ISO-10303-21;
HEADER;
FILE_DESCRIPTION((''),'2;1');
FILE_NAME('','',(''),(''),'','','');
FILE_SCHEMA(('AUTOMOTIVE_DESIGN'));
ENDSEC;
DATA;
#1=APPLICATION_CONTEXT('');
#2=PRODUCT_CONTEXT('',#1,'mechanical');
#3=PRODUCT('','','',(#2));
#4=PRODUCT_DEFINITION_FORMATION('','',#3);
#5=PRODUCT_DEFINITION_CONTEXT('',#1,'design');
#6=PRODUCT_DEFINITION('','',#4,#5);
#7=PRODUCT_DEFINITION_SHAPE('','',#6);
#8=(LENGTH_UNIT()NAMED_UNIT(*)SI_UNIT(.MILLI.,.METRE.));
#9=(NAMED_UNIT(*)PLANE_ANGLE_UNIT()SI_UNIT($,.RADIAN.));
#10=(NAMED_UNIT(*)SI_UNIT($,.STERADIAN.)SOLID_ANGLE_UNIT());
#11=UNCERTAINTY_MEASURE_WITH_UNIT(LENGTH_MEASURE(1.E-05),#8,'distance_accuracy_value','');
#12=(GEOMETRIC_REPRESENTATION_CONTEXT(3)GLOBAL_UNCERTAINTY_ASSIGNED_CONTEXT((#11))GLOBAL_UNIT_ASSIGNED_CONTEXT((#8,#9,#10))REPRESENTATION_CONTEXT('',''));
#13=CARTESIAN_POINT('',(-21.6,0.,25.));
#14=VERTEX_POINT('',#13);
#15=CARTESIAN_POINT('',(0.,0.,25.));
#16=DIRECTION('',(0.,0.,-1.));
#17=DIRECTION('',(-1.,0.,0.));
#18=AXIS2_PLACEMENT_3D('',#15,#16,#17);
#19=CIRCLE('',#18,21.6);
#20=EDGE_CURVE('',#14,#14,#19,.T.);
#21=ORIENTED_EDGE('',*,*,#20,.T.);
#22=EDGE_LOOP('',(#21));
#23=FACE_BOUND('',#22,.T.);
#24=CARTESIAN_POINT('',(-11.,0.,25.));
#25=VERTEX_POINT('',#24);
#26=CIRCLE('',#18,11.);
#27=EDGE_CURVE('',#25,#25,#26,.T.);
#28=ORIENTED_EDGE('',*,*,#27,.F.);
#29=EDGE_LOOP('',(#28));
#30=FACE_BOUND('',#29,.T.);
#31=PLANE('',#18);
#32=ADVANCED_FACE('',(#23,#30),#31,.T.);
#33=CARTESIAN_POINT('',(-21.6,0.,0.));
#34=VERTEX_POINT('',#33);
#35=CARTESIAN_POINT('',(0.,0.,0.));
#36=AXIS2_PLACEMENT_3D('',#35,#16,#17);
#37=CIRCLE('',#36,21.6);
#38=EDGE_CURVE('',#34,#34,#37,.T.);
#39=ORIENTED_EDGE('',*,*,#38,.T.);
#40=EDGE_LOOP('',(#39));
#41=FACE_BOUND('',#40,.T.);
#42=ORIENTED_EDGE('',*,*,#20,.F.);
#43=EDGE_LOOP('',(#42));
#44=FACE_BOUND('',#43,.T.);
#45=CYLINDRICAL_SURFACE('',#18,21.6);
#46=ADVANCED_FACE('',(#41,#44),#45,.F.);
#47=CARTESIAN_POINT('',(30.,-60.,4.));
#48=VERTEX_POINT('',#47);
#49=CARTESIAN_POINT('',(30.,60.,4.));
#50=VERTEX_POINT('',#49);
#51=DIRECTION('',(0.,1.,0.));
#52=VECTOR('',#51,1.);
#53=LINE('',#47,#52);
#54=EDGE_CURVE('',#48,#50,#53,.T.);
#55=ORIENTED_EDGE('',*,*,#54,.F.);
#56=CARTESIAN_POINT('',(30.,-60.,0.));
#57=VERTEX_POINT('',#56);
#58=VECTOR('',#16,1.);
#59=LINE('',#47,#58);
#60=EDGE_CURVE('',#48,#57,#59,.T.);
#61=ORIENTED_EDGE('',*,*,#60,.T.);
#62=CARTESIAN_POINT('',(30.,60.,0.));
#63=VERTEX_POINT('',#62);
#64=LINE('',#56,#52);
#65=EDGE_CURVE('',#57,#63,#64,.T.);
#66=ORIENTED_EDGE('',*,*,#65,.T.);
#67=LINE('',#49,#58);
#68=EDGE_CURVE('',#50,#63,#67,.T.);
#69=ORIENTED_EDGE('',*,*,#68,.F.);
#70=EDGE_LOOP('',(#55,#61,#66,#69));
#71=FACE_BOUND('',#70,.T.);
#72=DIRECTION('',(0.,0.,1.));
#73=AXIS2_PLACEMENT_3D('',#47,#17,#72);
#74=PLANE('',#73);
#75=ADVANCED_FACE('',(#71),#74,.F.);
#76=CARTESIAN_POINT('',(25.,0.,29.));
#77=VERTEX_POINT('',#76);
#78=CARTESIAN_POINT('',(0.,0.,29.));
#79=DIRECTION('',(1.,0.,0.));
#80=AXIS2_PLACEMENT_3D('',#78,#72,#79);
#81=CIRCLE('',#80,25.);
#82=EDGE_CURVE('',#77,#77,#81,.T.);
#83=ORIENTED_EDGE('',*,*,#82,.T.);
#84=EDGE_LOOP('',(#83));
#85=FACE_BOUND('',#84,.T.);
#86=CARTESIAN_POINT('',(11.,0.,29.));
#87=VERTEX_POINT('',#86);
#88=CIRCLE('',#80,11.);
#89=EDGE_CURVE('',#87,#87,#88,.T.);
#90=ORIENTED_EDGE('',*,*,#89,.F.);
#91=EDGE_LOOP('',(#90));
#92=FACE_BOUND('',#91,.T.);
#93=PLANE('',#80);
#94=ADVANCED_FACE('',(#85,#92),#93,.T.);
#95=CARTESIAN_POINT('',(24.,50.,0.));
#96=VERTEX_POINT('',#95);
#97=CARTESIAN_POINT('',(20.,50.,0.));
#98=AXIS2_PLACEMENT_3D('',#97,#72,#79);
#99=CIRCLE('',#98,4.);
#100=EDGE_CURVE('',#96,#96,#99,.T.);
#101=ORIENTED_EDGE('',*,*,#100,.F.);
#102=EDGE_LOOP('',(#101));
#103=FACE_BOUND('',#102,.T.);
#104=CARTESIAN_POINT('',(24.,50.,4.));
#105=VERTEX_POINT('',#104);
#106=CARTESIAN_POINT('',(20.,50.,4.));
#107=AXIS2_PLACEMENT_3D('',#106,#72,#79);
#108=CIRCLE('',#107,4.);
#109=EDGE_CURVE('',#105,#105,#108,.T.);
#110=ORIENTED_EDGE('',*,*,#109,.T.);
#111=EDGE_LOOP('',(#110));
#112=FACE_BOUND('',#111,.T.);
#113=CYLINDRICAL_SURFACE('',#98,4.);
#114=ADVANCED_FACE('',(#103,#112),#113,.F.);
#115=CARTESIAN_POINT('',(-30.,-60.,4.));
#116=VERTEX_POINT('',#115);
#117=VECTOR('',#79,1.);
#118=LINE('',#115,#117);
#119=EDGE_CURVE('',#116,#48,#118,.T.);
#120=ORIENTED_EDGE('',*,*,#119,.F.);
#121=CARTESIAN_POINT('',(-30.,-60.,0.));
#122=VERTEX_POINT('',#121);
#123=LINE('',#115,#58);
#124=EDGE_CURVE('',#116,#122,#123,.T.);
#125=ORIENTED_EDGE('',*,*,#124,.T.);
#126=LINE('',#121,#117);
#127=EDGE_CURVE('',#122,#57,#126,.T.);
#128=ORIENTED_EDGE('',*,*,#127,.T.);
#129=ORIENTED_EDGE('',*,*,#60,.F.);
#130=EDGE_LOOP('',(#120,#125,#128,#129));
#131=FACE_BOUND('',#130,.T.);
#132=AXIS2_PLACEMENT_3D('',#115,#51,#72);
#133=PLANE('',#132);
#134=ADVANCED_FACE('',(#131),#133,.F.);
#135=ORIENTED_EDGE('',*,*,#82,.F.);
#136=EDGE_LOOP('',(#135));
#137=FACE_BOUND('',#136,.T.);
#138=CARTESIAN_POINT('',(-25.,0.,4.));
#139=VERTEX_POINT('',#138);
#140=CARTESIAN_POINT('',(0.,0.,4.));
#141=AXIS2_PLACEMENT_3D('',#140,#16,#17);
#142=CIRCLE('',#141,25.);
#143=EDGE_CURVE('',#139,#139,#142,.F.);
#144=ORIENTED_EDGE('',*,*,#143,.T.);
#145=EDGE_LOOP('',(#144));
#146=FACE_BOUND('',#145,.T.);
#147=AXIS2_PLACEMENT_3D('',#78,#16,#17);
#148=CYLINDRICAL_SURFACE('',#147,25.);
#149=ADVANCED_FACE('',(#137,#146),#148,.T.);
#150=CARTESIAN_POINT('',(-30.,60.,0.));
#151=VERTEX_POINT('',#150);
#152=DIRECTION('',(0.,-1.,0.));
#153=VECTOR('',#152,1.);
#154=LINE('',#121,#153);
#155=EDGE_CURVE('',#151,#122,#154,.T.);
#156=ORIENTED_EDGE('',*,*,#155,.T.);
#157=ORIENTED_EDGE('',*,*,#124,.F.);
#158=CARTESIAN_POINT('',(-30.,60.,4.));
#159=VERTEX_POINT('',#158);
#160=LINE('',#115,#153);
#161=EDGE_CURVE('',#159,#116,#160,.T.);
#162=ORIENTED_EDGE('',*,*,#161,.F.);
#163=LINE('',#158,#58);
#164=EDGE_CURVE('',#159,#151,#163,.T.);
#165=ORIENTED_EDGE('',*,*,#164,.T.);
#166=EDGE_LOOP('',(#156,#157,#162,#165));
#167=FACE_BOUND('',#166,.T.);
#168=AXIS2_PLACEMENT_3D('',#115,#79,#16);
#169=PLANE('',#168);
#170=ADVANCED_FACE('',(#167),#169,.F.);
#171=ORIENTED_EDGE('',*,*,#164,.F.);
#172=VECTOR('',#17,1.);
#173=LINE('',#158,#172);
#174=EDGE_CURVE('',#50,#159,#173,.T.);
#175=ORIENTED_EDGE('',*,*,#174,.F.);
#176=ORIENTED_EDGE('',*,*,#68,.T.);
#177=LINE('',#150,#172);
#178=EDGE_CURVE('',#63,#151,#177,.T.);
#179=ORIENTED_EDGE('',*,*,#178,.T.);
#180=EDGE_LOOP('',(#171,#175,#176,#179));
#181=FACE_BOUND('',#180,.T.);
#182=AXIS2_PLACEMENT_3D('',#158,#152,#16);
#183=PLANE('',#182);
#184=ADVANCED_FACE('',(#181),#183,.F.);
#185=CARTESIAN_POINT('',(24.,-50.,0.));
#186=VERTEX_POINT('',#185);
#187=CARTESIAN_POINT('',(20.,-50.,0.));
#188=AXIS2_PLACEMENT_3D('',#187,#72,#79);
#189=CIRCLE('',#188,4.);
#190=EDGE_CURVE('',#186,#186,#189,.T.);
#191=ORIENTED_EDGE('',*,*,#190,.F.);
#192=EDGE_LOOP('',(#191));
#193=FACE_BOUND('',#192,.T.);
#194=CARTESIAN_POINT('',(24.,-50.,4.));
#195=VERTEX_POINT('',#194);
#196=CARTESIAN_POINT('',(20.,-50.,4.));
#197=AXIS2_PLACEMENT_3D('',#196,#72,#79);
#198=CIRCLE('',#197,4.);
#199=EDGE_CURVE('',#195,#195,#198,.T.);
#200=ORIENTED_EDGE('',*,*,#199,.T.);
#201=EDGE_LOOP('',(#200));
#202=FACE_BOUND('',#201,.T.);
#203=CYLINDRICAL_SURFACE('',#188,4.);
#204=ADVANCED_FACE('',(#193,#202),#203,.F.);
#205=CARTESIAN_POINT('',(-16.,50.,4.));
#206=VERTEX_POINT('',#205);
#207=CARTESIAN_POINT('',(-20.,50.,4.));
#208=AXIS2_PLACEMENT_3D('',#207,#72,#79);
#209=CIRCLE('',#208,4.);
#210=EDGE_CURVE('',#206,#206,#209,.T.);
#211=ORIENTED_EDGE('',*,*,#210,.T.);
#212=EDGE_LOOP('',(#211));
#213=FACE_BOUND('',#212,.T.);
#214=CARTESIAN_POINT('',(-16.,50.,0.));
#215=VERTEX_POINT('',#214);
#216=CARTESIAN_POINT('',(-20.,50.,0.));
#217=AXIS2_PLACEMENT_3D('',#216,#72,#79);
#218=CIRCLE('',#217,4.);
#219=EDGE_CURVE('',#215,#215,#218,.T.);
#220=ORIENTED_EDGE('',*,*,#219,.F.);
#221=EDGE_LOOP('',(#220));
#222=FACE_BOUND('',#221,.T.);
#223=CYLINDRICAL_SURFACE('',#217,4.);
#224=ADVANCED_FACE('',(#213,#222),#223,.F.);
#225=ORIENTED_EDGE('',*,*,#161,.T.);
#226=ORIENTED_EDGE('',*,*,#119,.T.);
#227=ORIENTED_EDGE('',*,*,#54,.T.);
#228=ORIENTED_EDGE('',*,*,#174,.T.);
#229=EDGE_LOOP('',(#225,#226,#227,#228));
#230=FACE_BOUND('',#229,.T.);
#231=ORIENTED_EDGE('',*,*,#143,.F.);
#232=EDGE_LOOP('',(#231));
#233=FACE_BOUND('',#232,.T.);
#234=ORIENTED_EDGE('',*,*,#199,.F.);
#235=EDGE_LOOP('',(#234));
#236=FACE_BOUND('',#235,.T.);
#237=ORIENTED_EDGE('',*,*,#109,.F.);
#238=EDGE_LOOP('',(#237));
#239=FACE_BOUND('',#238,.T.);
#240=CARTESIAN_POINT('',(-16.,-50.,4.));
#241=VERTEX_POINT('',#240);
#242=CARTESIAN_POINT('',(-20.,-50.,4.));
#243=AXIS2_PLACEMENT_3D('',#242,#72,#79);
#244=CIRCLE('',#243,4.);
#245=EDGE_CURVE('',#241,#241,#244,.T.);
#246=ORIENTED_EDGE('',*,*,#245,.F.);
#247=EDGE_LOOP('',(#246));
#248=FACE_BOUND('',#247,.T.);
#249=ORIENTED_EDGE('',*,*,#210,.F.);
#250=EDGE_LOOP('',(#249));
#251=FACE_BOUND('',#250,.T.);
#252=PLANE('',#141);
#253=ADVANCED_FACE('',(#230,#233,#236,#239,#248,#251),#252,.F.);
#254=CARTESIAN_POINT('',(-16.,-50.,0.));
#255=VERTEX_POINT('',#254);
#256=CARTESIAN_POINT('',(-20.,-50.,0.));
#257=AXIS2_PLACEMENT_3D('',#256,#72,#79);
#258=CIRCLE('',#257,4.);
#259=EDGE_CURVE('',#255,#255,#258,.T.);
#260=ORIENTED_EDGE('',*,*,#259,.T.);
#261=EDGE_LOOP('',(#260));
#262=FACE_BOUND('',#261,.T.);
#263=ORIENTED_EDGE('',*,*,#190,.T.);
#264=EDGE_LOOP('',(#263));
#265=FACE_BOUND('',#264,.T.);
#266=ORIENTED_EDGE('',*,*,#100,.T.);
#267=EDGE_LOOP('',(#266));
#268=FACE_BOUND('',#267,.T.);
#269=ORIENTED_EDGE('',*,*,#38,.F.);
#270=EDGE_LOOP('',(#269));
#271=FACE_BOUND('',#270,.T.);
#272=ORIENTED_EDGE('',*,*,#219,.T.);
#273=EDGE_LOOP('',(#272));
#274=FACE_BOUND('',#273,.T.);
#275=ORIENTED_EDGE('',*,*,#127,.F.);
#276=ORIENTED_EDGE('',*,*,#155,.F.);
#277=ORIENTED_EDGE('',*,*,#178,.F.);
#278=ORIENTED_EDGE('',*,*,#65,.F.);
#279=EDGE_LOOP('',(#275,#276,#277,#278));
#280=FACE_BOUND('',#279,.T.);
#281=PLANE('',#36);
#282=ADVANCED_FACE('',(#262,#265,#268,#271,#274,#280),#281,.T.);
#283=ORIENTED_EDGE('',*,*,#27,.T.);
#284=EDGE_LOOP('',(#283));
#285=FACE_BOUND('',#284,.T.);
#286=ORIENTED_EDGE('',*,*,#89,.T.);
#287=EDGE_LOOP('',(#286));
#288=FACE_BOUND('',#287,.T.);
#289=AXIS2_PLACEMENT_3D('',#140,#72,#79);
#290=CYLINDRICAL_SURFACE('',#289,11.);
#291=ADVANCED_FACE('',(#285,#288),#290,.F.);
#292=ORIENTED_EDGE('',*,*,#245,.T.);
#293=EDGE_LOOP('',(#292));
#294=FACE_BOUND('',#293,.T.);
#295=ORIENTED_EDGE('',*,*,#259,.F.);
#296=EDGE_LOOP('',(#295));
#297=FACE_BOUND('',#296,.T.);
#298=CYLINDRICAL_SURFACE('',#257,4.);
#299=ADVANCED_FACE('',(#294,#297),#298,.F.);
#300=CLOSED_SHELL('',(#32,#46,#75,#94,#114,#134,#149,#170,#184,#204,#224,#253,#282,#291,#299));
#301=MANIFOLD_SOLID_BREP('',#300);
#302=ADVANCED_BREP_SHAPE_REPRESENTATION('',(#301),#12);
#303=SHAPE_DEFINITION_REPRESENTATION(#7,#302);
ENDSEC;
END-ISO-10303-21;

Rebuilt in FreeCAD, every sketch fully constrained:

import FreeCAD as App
import Part
import Sketcher
from FreeCAD import Vector


def add_polygon(sketch, points):
    """Adds a closed chain of lines whose ends are joined by coincident constraints."""
    first, n = sketch.GeometryCount, len(points)
    for a, b in zip(points, points[1:] + points[:1]):
        sketch.addGeometry(Part.LineSegment(App.Vector(*a, 0), App.Vector(*b, 0)), False)
    for i in range(n):
        sketch.addConstraint(Sketcher.Constraint("Coincident", first + i, 2, first + (i + 1) % n, 1))

doc = App.newDocument("Part")
params = doc.addObject("Spreadsheet::Sheet", "Params")
for row, (alias, value) in enumerate([
    ("sketch1_width", "60 mm"),
    ("sketch1_height", "120 mm"),
    ("pad1_length", "4 mm"),
    ("sketch2_diameter", "8 mm"),
    ("pocket1_length", "4 mm"),
    ("sketch3_diameter", "50 mm"),
    ("pad2_length", "25 mm"),
    ("sketch4_diameter", "43.2 mm"),
    ("pocket2_length", "25 mm"),
    ("sketch5_diameter", "22 mm"),
    ("pocket3_length", "25 mm"),
], start=1):
    params.set(f"A{row}", alias)
    params.set(f"B{row}", "=" + value)
    params.setAlias(f"B{row}", alias)

body = doc.addObject("PartDesign::Body", "Body")

sketch1 = body.newObject("Sketcher::SketchObject", "Sketch")
sketch1.AttachmentSupport = (doc.getObject("XY_Plane"), [""])
sketch1.MapMode = "FlatFace"
add_polygon(sketch1, [(-30, 60), (-30, -60), (30, -60), (30, 60)])
sketch1.addConstraint([
    Sketcher.Constraint("Vertical", 0),
    Sketcher.Constraint("Horizontal", 1),
    Sketcher.Constraint("Vertical", 2),
    Sketcher.Constraint("Horizontal", 3),
    Sketcher.Constraint("Symmetric", 0, 2, 2, 2, -1, 1),
    Sketcher.Constraint("DistanceX", 1, 1, 1, 2, 60.0),
    Sketcher.Constraint("DistanceY", 0, 2, 0, 1, 120.0),
])
sketch1.setExpression("Constraints[9]", "Params.sketch1_width")
sketch1.setExpression("Constraints[10]", "Params.sketch1_height")
pad1 = body.newObject("PartDesign::Pad", "Pad")
pad1.Profile = sketch1
pad1.setExpression("Length", "Params.pad1_length")

sketch2 = body.newObject("Sketcher::SketchObject", "Sketch001")
sketch2.AttachmentSupport = (doc.getObject("XY_Plane"), [""])
sketch2.MapMode = "FlatFace"
sketch2.AttachmentOffset = App.Placement(Vector(0, 0, 4), App.Rotation())
sketch2.addGeometry([
    Part.Circle(Vector(-20, 50, 0), Vector(0, 0, 1), 4),
    Part.Circle(Vector(20, 50, 0), Vector(0, 0, 1), 4),
    Part.Circle(Vector(20, -50, 0), Vector(0, 0, 1), 4),
    Part.Circle(Vector(-20, -50, 0), Vector(0, 0, 1), 4),
], False)
sketch2.addConstraint([
    Sketcher.Constraint("Equal", 0, 1),
    Sketcher.Constraint("Equal", 1, 2),
    Sketcher.Constraint("Equal", 2, 3),
    Sketcher.Constraint("Symmetric", 0, 3, 2, 3, -1, 1),
    Sketcher.Constraint("Symmetric", 1, 3, 3, 3, -1, 1),
    Sketcher.Constraint("Symmetric", 0, 3, 1, 3, -2),
    Sketcher.Constraint("Diameter", 0, 8.0),
    Sketcher.Constraint("DistanceX", 0, 3, -1, 1, 20.0),
    Sketcher.Constraint("DistanceY", -1, 1, 0, 3, 50.0),
])
sketch2.setExpression("Constraints[6]", "Params.sketch2_diameter")
pocket1 = body.newObject("PartDesign::Pocket", "Pocket")
pocket1.Profile = sketch2
pocket1.setExpression("Length", "Params.pocket1_length")

sketch3 = body.newObject("Sketcher::SketchObject", "Sketch002")
sketch3.AttachmentSupport = (doc.getObject("XY_Plane"), [""])
sketch3.MapMode = "FlatFace"
sketch3.AttachmentOffset = App.Placement(Vector(0, 0, 4), App.Rotation())
sketch3.addGeometry(Part.Circle(Vector(0, 0, 0), Vector(0, 0, 1), 25), False)
sketch3.addConstraint([
    Sketcher.Constraint("Coincident", 0, 3, -1, 1),
    Sketcher.Constraint("Diameter", 0, 50.0),
])
sketch3.setExpression("Constraints[1]", "Params.sketch3_diameter")
pad2 = body.newObject("PartDesign::Pad", "Pad001")
pad2.Profile = sketch3
pad2.setExpression("Length", "Params.pad2_length")

sketch4 = body.newObject("Sketcher::SketchObject", "Sketch003")
sketch4.AttachmentSupport = (doc.getObject("XY_Plane"), [""])
sketch4.MapMode = "FlatFace"
sketch4.addGeometry(Part.Circle(Vector(0, 0, 0), Vector(0, 0, 1), 22), False)
sketch4.addConstraint([
    Sketcher.Constraint("Coincident", 0, 3, -1, 1),
    Sketcher.Constraint("Diameter", 0, 43.2),
])
sketch4.setExpression("Constraints[1]", "Params.sketch4_diameter")
pocket2 = body.newObject("PartDesign::Pocket", "Pocket001")
pocket2.Profile = sketch4
pocket2.setExpression("Length", "Params.pocket2_length")
pocket2.Reversed = True

sketch5 = body.newObject("Sketcher::SketchObject", "Sketch004")
sketch5.AttachmentSupport = (doc.getObject("XY_Plane"), [""])
sketch5.MapMode = "FlatFace"
sketch5.AttachmentOffset = App.Placement(Vector(0, 0, 29), App.Rotation())
sketch5.addGeometry(Part.Circle(Vector(0, 0, 0), Vector(0, 0, 1), 11), False)
sketch5.addConstraint([
    Sketcher.Constraint("Coincident", 0, 3, -1, 1),
    Sketcher.Constraint("Diameter", 0, 22.0),
])
sketch5.setExpression("Constraints[1]", "Params.sketch5_diameter")
pocket3 = body.newObject("PartDesign::Pocket", "Pocket002")
pocket3.Profile = sketch5
pocket3.setExpression("Length", "Params.pocket3_length")

doc.recompute()
